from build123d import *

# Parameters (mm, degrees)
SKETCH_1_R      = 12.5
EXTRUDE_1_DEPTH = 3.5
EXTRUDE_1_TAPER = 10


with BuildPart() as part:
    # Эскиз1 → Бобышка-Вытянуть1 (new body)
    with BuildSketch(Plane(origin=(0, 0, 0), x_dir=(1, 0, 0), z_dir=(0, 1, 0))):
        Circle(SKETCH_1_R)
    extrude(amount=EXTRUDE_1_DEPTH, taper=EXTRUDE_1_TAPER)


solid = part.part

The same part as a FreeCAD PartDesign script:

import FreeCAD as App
import Part
import Sketcher
from FreeCAD import Vector

doc = App.newDocument("Part")
params = doc.addObject("Spreadsheet::Sheet", "Params")
for row, (alias, value) in enumerate([
    ("sketch1_diameter", "25 mm"),
    ("pad1_length", "3.5 mm"),
    ("pad1_taper", "-10 deg"),
], start=1):
    params.set(f"A{row}", alias)
    params.set(f"B{row}", "=" + value)
    params.setAlias(f"B{row}", alias)

body = doc.addObject("PartDesign::Body", "Body")

# Sketch on XZ plane
sketch1 = body.newObject("Sketcher::SketchObject", "Sketch")
sketch1.AttachmentSupport = (doc.getObject("XZ_Plane"), [""])
sketch1.MapMode = "FlatFace"
sketch1.addGeometry(Part.Circle(Vector(0, 0, 0), Vector(0, 0, 1), 12), False)
sketch1.addConstraint([
    Sketcher.Constraint("Coincident", 0, 3, -1, 1),
    Sketcher.Constraint("Diameter", 0, 25.0),
])
sketch1.setExpression("Constraints[1]", "Params.sketch1_diameter")
pad1 = body.newObject("PartDesign::Pad", "Pad")
pad1.Profile = sketch1
pad1.setExpression("Length", "Params.pad1_length")
pad1.Reversed = True
pad1.setExpression("TaperAngle", "Params.pad1_taper")

doc.recompute()
